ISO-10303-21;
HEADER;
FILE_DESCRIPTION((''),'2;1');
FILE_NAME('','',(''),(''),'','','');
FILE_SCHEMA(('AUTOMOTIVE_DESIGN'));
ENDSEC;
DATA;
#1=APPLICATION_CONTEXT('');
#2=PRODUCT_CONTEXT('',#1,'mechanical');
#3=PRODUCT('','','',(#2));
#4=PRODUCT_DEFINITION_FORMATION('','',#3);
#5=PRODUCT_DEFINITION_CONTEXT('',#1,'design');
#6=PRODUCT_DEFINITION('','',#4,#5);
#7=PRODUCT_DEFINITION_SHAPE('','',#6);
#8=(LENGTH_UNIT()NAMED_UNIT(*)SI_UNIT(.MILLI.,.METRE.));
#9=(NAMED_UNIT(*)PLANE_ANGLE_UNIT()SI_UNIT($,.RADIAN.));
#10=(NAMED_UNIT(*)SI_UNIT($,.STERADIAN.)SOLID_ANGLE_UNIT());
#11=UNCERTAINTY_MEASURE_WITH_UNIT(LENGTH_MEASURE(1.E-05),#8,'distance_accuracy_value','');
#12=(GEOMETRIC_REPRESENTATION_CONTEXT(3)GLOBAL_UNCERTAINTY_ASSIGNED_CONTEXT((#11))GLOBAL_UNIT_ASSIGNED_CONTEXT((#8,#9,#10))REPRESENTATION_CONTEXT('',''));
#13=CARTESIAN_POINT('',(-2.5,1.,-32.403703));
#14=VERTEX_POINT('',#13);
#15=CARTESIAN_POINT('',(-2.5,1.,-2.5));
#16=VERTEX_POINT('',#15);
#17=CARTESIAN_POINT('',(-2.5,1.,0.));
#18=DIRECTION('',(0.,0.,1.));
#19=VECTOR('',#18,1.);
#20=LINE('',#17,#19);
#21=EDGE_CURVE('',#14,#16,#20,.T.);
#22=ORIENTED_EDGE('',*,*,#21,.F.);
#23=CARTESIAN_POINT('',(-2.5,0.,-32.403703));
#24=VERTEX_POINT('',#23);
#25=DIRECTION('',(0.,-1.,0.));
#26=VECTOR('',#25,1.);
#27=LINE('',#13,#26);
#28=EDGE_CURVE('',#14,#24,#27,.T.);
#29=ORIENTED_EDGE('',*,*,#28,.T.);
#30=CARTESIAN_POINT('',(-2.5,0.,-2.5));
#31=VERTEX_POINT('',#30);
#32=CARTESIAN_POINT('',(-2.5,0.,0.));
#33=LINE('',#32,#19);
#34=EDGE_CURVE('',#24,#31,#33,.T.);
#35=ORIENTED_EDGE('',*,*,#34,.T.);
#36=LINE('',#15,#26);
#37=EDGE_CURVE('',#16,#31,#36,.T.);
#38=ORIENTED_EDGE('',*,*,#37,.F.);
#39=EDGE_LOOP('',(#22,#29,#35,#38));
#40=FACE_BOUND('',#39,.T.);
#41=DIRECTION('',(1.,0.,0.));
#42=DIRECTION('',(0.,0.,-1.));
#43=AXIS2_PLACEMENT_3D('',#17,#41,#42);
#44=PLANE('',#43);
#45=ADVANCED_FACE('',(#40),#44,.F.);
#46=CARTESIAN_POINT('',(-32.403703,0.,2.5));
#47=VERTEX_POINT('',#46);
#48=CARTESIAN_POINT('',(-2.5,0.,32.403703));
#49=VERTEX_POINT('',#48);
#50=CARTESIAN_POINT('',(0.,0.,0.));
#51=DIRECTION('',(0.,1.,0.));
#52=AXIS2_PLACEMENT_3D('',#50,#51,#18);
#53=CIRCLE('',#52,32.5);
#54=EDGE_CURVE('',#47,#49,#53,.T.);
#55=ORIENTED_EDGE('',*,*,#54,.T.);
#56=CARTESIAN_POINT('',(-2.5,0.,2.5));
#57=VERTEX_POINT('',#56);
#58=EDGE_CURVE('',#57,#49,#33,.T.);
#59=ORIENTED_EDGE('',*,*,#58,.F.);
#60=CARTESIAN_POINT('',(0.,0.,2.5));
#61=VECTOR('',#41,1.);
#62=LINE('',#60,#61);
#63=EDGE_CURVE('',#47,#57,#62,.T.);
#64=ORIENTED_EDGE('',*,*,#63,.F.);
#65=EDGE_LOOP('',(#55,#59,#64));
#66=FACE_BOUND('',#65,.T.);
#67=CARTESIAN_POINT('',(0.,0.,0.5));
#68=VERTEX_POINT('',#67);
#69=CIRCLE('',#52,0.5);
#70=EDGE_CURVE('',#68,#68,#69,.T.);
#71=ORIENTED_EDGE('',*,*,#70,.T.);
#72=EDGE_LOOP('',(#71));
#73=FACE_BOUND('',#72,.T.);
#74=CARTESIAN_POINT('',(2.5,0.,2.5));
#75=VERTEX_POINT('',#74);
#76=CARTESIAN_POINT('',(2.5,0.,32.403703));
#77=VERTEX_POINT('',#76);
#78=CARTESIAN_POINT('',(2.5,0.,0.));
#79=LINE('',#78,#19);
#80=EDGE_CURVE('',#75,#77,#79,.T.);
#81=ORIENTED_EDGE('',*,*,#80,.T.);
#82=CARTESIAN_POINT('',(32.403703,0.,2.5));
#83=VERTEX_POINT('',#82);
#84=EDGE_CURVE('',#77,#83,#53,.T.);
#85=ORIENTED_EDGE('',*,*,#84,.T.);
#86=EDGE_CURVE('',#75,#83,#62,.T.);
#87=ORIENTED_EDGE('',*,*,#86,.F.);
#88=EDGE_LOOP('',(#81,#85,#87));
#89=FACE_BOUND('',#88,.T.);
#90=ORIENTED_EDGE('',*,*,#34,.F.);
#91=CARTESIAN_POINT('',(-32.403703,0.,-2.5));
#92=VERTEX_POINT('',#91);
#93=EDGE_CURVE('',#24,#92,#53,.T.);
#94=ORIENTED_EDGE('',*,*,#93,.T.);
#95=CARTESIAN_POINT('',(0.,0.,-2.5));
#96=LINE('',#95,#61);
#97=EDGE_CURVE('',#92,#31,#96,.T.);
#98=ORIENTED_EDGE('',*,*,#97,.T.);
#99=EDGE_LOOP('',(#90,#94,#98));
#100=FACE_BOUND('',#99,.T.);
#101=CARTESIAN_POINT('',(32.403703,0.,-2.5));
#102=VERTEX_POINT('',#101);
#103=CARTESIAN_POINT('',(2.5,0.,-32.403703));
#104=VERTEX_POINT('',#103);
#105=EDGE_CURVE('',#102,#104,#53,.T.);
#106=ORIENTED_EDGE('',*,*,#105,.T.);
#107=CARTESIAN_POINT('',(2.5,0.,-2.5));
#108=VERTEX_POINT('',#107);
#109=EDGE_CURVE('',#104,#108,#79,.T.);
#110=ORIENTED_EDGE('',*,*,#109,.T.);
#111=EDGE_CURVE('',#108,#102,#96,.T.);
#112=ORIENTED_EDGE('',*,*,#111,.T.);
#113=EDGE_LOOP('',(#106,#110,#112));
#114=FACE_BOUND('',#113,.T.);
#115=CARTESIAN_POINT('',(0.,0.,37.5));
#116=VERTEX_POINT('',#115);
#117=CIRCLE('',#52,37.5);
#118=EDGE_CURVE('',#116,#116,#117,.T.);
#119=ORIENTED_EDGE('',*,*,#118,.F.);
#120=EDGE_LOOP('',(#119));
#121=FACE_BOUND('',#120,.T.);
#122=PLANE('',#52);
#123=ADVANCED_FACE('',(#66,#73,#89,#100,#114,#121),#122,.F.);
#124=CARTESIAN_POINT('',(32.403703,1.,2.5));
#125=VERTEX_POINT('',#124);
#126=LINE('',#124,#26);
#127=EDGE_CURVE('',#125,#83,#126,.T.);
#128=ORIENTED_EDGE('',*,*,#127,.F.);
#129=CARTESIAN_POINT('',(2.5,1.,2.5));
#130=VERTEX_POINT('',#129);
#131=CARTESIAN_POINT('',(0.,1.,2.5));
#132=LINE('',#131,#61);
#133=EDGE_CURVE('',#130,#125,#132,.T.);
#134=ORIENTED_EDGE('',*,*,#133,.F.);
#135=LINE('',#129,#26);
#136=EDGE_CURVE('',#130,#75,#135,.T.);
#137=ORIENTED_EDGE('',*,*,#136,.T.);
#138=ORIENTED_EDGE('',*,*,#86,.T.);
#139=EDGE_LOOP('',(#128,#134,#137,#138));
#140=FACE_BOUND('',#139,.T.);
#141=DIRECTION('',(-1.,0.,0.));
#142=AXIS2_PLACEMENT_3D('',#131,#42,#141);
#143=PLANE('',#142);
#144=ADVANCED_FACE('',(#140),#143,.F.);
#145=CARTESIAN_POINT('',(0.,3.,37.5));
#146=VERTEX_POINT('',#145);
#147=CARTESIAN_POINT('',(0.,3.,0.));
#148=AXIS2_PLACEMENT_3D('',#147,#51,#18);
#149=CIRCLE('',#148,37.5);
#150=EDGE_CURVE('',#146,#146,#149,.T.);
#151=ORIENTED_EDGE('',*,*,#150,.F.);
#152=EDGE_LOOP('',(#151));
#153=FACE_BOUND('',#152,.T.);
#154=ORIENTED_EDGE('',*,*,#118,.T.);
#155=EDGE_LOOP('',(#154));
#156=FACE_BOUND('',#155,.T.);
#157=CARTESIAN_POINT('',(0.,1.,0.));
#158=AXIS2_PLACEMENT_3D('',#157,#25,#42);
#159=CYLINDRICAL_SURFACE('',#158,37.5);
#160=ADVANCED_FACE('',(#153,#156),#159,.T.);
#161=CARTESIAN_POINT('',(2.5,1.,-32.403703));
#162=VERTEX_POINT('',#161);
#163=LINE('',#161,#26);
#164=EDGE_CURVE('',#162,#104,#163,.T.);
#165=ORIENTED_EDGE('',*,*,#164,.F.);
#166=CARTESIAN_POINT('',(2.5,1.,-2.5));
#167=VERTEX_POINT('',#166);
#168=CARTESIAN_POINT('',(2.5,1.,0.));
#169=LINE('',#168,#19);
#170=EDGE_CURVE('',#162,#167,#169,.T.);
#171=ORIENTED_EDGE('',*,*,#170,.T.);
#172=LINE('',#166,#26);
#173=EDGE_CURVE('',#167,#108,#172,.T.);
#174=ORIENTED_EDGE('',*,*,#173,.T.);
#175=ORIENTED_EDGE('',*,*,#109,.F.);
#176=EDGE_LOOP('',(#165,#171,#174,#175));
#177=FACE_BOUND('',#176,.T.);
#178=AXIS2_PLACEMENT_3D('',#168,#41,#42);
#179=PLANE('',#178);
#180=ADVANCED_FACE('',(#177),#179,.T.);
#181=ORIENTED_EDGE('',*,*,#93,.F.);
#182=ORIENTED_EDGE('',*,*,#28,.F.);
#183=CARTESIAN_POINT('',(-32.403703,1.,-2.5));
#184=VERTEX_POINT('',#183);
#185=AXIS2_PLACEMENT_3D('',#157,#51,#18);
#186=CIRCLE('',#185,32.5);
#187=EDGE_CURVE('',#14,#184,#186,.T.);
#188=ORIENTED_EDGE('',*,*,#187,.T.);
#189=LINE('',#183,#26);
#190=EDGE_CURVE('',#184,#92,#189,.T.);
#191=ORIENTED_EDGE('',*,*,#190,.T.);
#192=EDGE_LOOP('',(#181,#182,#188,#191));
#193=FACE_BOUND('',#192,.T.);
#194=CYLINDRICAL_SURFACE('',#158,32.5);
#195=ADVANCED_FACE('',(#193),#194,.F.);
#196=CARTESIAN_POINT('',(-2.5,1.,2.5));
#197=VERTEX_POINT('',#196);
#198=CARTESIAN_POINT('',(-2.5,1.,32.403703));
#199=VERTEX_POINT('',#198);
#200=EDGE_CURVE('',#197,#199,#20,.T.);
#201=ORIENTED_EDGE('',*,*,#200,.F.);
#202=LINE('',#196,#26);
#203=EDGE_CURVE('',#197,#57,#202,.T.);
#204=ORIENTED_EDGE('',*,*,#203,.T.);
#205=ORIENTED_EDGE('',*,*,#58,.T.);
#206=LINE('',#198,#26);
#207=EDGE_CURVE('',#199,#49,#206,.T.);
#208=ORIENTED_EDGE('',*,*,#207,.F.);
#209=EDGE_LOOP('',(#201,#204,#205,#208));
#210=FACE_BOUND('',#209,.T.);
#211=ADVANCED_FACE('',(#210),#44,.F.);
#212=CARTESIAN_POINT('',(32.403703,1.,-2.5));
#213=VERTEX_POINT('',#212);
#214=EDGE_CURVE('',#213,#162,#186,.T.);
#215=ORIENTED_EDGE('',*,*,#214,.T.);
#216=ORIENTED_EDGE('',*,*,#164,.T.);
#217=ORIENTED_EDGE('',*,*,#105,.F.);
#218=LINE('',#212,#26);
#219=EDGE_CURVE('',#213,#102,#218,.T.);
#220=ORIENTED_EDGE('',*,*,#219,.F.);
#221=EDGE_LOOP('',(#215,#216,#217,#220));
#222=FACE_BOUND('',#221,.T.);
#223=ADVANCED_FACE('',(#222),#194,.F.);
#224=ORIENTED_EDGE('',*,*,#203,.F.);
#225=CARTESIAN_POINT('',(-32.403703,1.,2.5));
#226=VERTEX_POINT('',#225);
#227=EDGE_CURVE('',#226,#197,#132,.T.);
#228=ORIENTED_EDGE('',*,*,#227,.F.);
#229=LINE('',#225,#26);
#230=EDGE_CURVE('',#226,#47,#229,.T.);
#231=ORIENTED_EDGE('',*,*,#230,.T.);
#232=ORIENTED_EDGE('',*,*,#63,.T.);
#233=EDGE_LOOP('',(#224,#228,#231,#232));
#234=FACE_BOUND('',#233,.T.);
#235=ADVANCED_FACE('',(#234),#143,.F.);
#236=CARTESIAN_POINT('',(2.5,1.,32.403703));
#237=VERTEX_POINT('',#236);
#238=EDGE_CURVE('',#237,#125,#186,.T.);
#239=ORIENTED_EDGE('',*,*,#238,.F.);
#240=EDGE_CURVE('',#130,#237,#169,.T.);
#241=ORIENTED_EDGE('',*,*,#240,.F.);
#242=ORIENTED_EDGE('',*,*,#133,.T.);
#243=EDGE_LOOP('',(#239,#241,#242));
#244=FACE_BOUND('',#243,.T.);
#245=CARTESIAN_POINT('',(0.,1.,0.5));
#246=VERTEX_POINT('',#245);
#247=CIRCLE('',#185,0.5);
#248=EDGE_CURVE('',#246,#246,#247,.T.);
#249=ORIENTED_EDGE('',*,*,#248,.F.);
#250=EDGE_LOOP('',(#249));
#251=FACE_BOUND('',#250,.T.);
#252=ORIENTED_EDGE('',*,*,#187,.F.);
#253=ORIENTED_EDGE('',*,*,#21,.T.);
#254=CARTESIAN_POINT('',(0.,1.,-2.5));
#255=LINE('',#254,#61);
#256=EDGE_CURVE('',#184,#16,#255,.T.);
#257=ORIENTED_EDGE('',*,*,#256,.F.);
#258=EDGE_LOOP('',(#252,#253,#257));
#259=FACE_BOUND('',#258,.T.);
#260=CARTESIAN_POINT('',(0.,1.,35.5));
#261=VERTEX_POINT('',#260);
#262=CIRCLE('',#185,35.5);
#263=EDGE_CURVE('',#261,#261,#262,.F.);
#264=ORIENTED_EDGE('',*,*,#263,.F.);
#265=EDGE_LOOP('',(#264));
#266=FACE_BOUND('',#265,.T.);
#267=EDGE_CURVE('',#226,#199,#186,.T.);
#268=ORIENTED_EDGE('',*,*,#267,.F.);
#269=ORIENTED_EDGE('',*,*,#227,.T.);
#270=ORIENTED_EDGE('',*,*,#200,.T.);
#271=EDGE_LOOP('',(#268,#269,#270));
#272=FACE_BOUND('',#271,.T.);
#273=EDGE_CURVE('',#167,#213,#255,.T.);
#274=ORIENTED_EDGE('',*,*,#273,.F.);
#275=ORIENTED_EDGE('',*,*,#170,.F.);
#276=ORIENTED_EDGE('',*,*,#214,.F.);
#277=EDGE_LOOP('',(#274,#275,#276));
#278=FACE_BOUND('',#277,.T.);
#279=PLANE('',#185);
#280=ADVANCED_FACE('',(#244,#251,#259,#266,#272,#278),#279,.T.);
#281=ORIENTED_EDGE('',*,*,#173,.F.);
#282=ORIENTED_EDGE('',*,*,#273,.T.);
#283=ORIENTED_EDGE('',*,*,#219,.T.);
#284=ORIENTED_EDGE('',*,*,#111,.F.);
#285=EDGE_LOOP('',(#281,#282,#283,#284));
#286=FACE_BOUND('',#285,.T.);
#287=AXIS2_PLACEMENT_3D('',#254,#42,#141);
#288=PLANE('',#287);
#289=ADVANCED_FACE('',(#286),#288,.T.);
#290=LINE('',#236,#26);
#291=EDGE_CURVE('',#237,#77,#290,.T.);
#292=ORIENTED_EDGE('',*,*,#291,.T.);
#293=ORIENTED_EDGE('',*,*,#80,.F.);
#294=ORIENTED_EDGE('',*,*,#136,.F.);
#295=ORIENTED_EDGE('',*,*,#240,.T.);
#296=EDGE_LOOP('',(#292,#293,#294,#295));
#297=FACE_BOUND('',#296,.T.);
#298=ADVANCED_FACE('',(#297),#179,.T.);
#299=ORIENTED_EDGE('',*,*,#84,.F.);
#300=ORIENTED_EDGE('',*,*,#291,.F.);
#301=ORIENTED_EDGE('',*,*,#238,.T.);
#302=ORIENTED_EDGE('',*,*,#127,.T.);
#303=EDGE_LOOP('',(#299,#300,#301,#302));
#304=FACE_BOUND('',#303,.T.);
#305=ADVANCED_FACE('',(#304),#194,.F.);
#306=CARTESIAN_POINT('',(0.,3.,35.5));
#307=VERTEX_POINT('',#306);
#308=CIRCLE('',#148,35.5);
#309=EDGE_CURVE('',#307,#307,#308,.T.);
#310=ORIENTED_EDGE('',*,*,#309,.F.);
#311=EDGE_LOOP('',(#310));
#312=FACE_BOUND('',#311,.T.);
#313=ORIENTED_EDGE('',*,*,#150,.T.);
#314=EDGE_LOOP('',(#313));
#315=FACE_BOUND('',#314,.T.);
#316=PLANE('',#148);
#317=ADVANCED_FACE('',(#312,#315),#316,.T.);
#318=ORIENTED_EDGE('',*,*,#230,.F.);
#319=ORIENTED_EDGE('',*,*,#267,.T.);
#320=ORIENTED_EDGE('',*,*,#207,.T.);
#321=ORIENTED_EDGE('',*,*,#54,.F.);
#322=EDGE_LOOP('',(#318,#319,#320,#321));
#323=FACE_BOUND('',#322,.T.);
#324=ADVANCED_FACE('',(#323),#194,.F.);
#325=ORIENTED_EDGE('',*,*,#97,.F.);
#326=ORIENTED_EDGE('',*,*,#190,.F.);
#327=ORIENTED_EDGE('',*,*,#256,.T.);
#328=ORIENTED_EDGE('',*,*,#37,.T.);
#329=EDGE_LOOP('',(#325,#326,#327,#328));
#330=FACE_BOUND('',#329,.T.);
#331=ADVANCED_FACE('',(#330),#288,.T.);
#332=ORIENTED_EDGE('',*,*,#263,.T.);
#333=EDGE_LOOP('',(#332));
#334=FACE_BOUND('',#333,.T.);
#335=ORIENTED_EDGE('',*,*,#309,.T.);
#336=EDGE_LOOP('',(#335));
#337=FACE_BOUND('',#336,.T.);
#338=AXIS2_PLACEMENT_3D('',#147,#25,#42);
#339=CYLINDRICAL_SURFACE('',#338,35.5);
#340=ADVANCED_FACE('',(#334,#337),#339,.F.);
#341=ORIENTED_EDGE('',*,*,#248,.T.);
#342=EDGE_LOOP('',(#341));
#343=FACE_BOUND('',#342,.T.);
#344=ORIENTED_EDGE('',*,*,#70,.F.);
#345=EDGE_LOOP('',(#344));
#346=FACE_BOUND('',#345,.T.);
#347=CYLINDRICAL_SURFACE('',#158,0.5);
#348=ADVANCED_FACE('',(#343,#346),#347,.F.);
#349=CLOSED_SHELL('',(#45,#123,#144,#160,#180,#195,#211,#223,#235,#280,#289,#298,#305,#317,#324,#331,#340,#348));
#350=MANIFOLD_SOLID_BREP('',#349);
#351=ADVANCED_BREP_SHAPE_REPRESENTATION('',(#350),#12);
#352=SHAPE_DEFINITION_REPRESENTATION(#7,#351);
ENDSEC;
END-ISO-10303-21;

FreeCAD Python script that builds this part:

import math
import FreeCAD as App
import Part
import Sketcher
Q = App.Units.Quantity

doc = App.newDocument("Part")
params = doc.addObject("Spreadsheet::Sheet", "Params")
for row, (alias, value) in enumerate([
    ("sketch1_diameter", "75 mm"),
    ("sketch1_diameter2", "1 mm"),
    ("sketch1_radius", "32.5 mm"),
    ("pad1_length", "1 mm"),
    ("sketch2_diameter", "75 mm"),
    ("sketch2_diameter2", "71 mm"),
    ("pad2_length", "2 mm"),
], start=1):
    params.set(f"A{row}", alias)
    params.set(f"B{row}", "=" + value)
    params.setAlias(f"B{row}", alias)

body = doc.addObject("PartDesign::Body", "Body")

# Sketch on XZ plane
sketch1 = doc.addObject("Sketcher::SketchObject", "Sketch")
body.addObject(sketch1)
sketch1.AttachmentSupport = (doc.XZ_Plane, [""])
sketch1.MapMode = "FlatFace"
sketch1.addGeometry([
    Part.Circle(App.Vector(0, 0, 0), App.Vector(0, 0, 1), 37.5),  # 0
    Part.ArcOfCircle(Part.Circle(App.Vector(0, 0, 0), App.Vector(0, 0, 1), 32.5), math.radians(-86), math.radians(-4)),  # 1
    Part.LineSegment(App.Vector(32.4, -2.5, 0), App.Vector(2.5, -2.5, 0)),  # 2
    Part.LineSegment(App.Vector(2.5, -2.5, 0), App.Vector(2.5, -32.4, 0)),  # 3
    Part.ArcOfCircle(Part.Circle(App.Vector(0, 0, 0), App.Vector(0, 0, 1), 32.5), math.radians(-176), math.radians(-94)),  # 4
    Part.LineSegment(App.Vector(-2.5, -32.4, 0), App.Vector(-2.5, -2.5, 0)),  # 5
    Part.LineSegment(App.Vector(-2.5, -2.5, 0), App.Vector(-32.4, -2.5, 0)),  # 6
    Part.ArcOfCircle(Part.Circle(App.Vector(0, 0, 0), App.Vector(0, 0, 1), 32.5), math.radians(94), math.radians(176)),  # 7
    Part.LineSegment(App.Vector(-32.4, 2.5, 0), App.Vector(-2.5, 2.5, 0)),  # 8
    Part.LineSegment(App.Vector(-2.5, 2.5, 0), App.Vector(-2.5, 32.4, 0)),  # 9
    Part.ArcOfCircle(Part.Circle(App.Vector(0, 0, 0), App.Vector(0, 0, 1), 32.5), math.radians(4), math.radians(86)),  # 10
    Part.LineSegment(App.Vector(2.5, 32.4, 0), App.Vector(2.5, 2.5, 0)),  # 11
    Part.LineSegment(App.Vector(2.5, 2.5, 0), App.Vector(32.4, 2.5, 0)),  # 12
    Part.Circle(App.Vector(0, 0, 0), App.Vector(0, 0, 1), 0.5),  # 13
], False)
sketch1.addConstraint([
    Sketcher.Constraint("Coincident", 1, 2, 2, 1),
    Sketcher.Constraint("Coincident", 2, 2, 3, 1),
    Sketcher.Constraint("Coincident", 3, 2, 1, 1),
    Sketcher.Constraint("Coincident", 4, 2, 5, 1),
    Sketcher.Constraint("Coincident", 5, 2, 6, 1),
    Sketcher.Constraint("Coincident", 6, 2, 4, 1),
    Sketcher.Constraint("Coincident", 7, 2, 8, 1),
    Sketcher.Constraint("Coincident", 8, 2, 9, 1),
    Sketcher.Constraint("Coincident", 9, 2, 7, 1),
    Sketcher.Constraint("Coincident", 10, 2, 11, 1),
    Sketcher.Constraint("Coincident", 11, 2, 12, 1),
    Sketcher.Constraint("Coincident", 12, 2, 10, 1),
    Sketcher.Constraint("Horizontal", 2),
    Sketcher.Constraint("Vertical", 3),
    Sketcher.Constraint("Vertical", 5),
    Sketcher.Constraint("Horizontal", 6),
    Sketcher.Constraint("Horizontal", 8),
    Sketcher.Constraint("Vertical", 9),
    Sketcher.Constraint("Vertical", 11),
    Sketcher.Constraint("Horizontal", 12),
    Sketcher.Constraint("Coincident", 0, 3, -1, 1),
    Sketcher.Constraint("Coincident", 1, 3, -1, 1),
    Sketcher.Constraint("Coincident", 4, 3, -1, 1),
    Sketcher.Constraint("Coincident", 7, 3, -1, 1),
    Sketcher.Constraint("Coincident", 10, 3, -1, 1),
    Sketcher.Constraint("Coincident", 13, 3, -1, 1),
    Sketcher.Constraint("Equal", 1, 4),
    Sketcher.Constraint("Equal", 4, 7),
    Sketcher.Constraint("Equal", 7, 10),
    Sketcher.Constraint("Symmetric", 2, 2, 8, 2, -1, 1),
    Sketcher.Constraint("Symmetric", 5, 2, 11, 2, -1, 1),
    Sketcher.Constraint("Symmetric", 2, 2, 5, 2, -2),
    Sketcher.Constraint("Equal", 12, 3),
    Sketcher.Constraint("Diameter", 0, Q("75 mm")),
    Sketcher.Constraint("Diameter", 13, Q("1 mm")),
    Sketcher.Constraint("Radius", 1, Q("32.5 mm")),
    Sketcher.Constraint("DistanceX", 4, 2, 3, 2, Q("5 mm")),
])
sketch1.setExpression("Constraints[33]", "Params.sketch1_diameter")
sketch1.setExpression("Constraints[34]", "Params.sketch1_diameter2")
sketch1.setExpression("Constraints[35]", "Params.sketch1_radius")
pad1 = doc.addObject("PartDesign::Pad", "Pad")
body.addObject(pad1)
pad1.Profile = sketch1
pad1.setExpression("Length", "Params.pad1_length")
pad1.Reversed = True

# Sketch on XZ plane
sketch2 = doc.addObject("Sketcher::SketchObject", "Sketch001")
body.addObject(sketch2)
sketch2.AttachmentSupport = (doc.XZ_Plane, [""])
sketch2.MapMode = "FlatFace"
sketch2.AttachmentOffset = App.Placement(App.Vector(0, 0, -1), App.Rotation())
sketch2.addGeometry([
    Part.Circle(App.Vector(0, 0, 0), App.Vector(0, 0, 1), 38),
    Part.Circle(App.Vector(0, 0, 0), App.Vector(0, 0, 1), 36),
], False)
sketch2.addConstraint([
    Sketcher.Constraint("Coincident", 0, 3, -1, 1),
    Sketcher.Constraint("Coincident", 1, 3, -1, 1),
    Sketcher.Constraint("Diameter", 0, Q("75 mm")),
    Sketcher.Constraint("Diameter", 1, Q("71 mm")),
])
sketch2.setExpression("Constraints[2]", "Params.sketch2_diameter")
sketch2.setExpression("Constraints[3]", "Params.sketch2_diameter2")
pad2 = doc.addObject("PartDesign::Pad", "Pad001")
body.addObject(pad2)
pad2.Profile = sketch2
pad2.setExpression("Length", "Params.pad2_length")
pad2.Reversed = True

doc.recompute()
